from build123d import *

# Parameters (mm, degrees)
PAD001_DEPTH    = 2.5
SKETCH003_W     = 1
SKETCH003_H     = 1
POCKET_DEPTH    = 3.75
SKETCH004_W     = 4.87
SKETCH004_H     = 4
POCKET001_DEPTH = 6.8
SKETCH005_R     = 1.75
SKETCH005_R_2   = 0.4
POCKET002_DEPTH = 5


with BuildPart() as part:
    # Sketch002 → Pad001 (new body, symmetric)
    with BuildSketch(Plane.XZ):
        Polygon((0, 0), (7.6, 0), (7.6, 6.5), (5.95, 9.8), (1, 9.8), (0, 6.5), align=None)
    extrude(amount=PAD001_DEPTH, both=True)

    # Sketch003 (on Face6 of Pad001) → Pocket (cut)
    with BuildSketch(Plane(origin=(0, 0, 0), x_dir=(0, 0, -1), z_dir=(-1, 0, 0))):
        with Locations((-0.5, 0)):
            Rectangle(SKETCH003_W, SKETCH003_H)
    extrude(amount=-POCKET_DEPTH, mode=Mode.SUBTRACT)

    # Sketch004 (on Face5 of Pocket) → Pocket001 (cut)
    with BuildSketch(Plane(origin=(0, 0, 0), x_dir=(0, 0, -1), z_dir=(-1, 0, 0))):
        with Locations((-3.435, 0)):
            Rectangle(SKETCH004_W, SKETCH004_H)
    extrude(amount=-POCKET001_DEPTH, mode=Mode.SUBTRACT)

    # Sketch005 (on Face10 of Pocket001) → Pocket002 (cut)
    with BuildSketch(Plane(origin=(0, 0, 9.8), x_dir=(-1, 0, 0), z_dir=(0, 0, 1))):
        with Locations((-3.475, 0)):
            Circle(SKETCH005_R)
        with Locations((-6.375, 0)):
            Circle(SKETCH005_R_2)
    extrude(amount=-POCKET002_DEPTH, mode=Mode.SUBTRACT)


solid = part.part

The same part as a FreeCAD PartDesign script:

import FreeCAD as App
import Part
import Sketcher

doc = App.newDocument("Part")
body = doc.addObject("PartDesign::Body", "Body")

# Sketch on XZ plane
sketch1 = doc.addObject("Sketcher::SketchObject", "Sketch")
body.addObject(sketch1)
sketch1.AttachmentSupport = (doc.XZ_Plane, [""])
sketch1.MapMode = "FlatFace"
sketch1.addGeometry([
    Part.LineSegment(App.Vector(0, 0, 0), App.Vector(7.6, 0, 0)),  # 0
    Part.LineSegment(App.Vector(7.6, 0, 0), App.Vector(7.6, 6.5, 0)),  # 1
    Part.LineSegment(App.Vector(7.6, 6.5, 0), App.Vector(6, 9.8, 0)),  # 2
    Part.LineSegment(App.Vector(6, 9.8, 0), App.Vector(1, 9.8, 0)),  # 3
    Part.LineSegment(App.Vector(1, 9.8, 0), App.Vector(0, 6.5, 0)),  # 4
    Part.LineSegment(App.Vector(0, 6.5, 0), App.Vector(0, 0, 0)),  # 5
], False)
sketch1.addConstraint([
    Sketcher.Constraint("Coincident", 0, 2, 1, 1),
    Sketcher.Constraint("Coincident", 1, 2, 2, 1),
    Sketcher.Constraint("Coincident", 2, 2, 3, 1),
    Sketcher.Constraint("Coincident", 3, 2, 4, 1),
    Sketcher.Constraint("Coincident", 4, 2, 5, 1),
    Sketcher.Constraint("Coincident", 5, 2, 0, 1),
    Sketcher.Constraint("Horizontal", 0),
    Sketcher.Constraint("Vertical", 1),
    Sketcher.Constraint("Horizontal", 3),
    Sketcher.Constraint("Vertical", 5),
    Sketcher.Constraint("Coincident", 5, 2, -1, 1),
    Sketcher.Constraint("Horizontal", 1, 2, 4, 2),
    Sketcher.Constraint("DistanceX", 0, 1, 0, 2, 7.6),
    Sketcher.Constraint("DistanceY", 1, 1, 1, 2, 6.5),
    Sketcher.Constraint("DistanceX", -1, 1, 3, 2, 1.0),
    Sketcher.Constraint("DistanceX", 3, 2, 3, 1, 4.95),
    Sketcher.Constraint("DistanceY", -1, 1, 2, 2, 9.8),
])
pad1 = doc.addObject("PartDesign::Pad", "Pad")
body.addObject(pad1)
pad1.Profile = sketch1
pad1.Length = 5
pad1.Midplane = True

# Sketch on YZ plane
sketch2 = doc.addObject("Sketcher::SketchObject", "Sketch001")
body.addObject(sketch2)
sketch2.AttachmentSupport = (doc.YZ_Plane, [""])
sketch2.MapMode = "FlatFace"
sketch2.addGeometry([
    Part.LineSegment(App.Vector(-0.5, 1, 0), App.Vector(0.5, 1, 0)),
    Part.LineSegment(App.Vector(0.5, 1, 0), App.Vector(0.5, 0, 0)),
    Part.LineSegment(App.Vector(0.5, 0, 0), App.Vector(-0.5, 0, 0)),
    Part.LineSegment(App.Vector(-0.5, 0, 0), App.Vector(-0.5, 1, 0)),
], False)
sketch2.addConstraint([
    Sketcher.Constraint("Coincident", 0, 2, 1, 1),
    Sketcher.Constraint("Coincident", 1, 2, 2, 1),
    Sketcher.Constraint("Coincident", 2, 2, 3, 1),
    Sketcher.Constraint("Coincident", 3, 2, 0, 1),
    Sketcher.Constraint("Horizontal", 0),
    Sketcher.Constraint("Vertical", 1),
    Sketcher.Constraint("Horizontal", 2),
    Sketcher.Constraint("Vertical", 3),
    Sketcher.Constraint("Symmetric", 1, 2, 2, 2, -1, 1),
    Sketcher.Constraint("Equal", 2, 1),
    Sketcher.Constraint("DistanceX", 0, 1, 0, 2, 1.0),
])
pocket1 = doc.addObject("PartDesign::Pocket", "Pocket")
body.addObject(pocket1)
pocket1.Profile = sketch2
pocket1.Length = 3.75
pocket1.Reversed = True

# Sketch on YZ plane
sketch3 = doc.addObject("Sketcher::SketchObject", "Sketch002")
body.addObject(sketch3)
sketch3.AttachmentSupport = (doc.YZ_Plane, [""])
sketch3.MapMode = "FlatFace"
sketch3.addGeometry([
    Part.LineSegment(App.Vector(-2, 5.9, 0), App.Vector(2, 5.9, 0)),
    Part.LineSegment(App.Vector(2, 5.9, 0), App.Vector(2, 1, 0)),
    Part.LineSegment(App.Vector(2, 1, 0), App.Vector(-2, 1, 0)),
    Part.LineSegment(App.Vector(-2, 1, 0), App.Vector(-2, 5.9, 0)),
], False)
sketch3.addConstraint([
    Sketcher.Constraint("Coincident", 0, 2, 1, 1),
    Sketcher.Constraint("Coincident", 1, 2, 2, 1),
    Sketcher.Constraint("Coincident", 2, 2, 3, 1),
    Sketcher.Constraint("Coincident", 3, 2, 0, 1),
    Sketcher.Constraint("Horizontal", 0),
    Sketcher.Constraint("Vertical", 1),
    Sketcher.Constraint("Horizontal", 2),
    Sketcher.Constraint("Vertical", 3),
    Sketcher.Constraint("DistanceX", 0, 1, 0, 2, 4.0),
    Sketcher.Constraint("DistanceX", -1, 1, 0, 2, 2.0),
    Sketcher.Constraint("DistanceY", -1, 1, 1, 2, 1.0),
    Sketcher.Constraint("DistanceY", 1, 2, 1, 1, 4.87),
])
pocket2 = doc.addObject("PartDesign::Pocket", "Pocket001")
body.addObject(pocket2)
pocket2.Profile = sketch3
pocket2.Length = 6.8
pocket2.Reversed = True

# Sketch on XY plane
sketch4 = doc.addObject("Sketcher::SketchObject", "Sketch003")
body.addObject(sketch4)
sketch4.AttachmentSupport = (doc.XY_Plane, [""])
sketch4.MapMode = "FlatFace"
sketch4.AttachmentOffset = App.Placement(App.Vector(0, 0, 9.8), App.Rotation())
sketch4.addGeometry([
    Part.Circle(App.Vector(3.48, 0, 0), App.Vector(0, 0, 1), 1.75),
    Part.Circle(App.Vector(6.38, 0, 0), App.Vector(0, 0, 1), 0.4),
], False)
sketch4.addConstraint([
    Sketcher.Constraint("PointOnObject", 0, 3, -1),
    Sketcher.Constraint("PointOnObject", 1, 3, -1),
    Sketcher.Constraint("Diameter", 0, 3.5),
    Sketcher.Constraint("Diameter", 1, 0.8),
    Sketcher.Constraint("DistanceX", 0, 3, 1, 3, 2.9),
    Sketcher.Constraint("DistanceX", -1, 1, 0, 3, 3.475),
])
pocket3 = doc.addObject("PartDesign::Pocket", "Pocket002")
body.addObject(pocket3)
pocket3.Profile = sketch4
pocket3.Length = 5

doc.recompute()
